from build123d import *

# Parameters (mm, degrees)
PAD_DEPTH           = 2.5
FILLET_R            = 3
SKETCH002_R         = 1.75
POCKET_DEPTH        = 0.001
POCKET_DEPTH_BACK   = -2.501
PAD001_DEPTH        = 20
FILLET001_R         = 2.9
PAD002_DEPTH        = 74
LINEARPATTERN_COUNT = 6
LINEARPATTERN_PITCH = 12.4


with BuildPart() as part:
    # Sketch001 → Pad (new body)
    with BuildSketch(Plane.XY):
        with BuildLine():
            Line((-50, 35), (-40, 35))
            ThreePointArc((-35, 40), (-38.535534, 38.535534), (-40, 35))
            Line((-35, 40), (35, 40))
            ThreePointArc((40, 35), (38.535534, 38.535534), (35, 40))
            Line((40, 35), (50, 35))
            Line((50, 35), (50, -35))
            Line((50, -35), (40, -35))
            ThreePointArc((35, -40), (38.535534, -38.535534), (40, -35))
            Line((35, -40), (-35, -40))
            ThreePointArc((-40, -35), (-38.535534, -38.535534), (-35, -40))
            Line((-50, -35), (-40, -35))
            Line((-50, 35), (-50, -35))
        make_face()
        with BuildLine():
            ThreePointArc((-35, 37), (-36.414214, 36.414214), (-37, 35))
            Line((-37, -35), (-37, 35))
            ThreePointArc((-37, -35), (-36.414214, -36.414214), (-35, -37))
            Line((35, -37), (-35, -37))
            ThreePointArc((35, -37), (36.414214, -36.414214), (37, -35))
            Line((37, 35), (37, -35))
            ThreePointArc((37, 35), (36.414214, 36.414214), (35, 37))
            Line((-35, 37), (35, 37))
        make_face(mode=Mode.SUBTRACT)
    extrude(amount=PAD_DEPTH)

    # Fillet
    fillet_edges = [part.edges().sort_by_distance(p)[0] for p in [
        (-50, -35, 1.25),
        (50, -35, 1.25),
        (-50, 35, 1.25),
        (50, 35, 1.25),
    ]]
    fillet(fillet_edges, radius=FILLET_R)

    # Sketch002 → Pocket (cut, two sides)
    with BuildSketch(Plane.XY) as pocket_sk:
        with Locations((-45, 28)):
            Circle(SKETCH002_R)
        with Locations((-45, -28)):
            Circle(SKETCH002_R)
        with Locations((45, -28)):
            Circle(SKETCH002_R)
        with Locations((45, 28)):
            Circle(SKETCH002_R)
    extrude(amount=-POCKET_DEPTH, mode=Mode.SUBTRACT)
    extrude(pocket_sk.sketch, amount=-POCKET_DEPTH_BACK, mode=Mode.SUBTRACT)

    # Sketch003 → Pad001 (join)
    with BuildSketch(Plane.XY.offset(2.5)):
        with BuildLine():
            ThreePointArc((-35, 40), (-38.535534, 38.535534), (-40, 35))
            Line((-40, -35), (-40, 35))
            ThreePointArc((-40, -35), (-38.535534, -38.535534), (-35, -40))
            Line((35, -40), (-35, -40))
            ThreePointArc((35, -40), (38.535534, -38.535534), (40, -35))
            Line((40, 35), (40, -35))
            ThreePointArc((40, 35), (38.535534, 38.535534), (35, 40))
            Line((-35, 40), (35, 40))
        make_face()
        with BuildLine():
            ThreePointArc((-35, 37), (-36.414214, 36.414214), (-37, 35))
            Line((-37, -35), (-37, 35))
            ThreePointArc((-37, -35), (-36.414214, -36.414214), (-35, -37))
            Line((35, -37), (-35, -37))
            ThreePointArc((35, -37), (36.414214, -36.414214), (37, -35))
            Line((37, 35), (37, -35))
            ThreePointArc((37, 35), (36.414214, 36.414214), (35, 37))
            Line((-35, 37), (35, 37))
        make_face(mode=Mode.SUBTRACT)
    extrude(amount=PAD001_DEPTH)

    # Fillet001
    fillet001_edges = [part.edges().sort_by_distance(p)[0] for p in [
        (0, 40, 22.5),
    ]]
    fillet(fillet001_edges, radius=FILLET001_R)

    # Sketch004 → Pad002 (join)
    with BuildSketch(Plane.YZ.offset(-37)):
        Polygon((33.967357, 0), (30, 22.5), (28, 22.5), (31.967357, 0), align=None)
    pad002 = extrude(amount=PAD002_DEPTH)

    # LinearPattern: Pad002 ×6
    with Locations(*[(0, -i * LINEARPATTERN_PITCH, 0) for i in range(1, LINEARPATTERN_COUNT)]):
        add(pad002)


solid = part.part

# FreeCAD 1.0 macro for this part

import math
import FreeCAD as App
import Part
import Sketcher
Q = App.Units.Quantity


def edges_at(feature, points):
    """Names of the edges that pass closest to the given points."""
    edges = feature.Shape.Edges
    near = lambda p: min(range(len(edges)), key=lambda i: edges[i].distToShape(Part.Vertex(*p))[0])
    return sorted({f"Edge{near(p) + 1}" for p in points})

doc = App.newDocument("Part")
params = doc.addObject("Spreadsheet::Sheet", "Params")
for row, (alias, value) in enumerate([
    ("sketch1_radius", "5 mm"),
    ("sketch1_radius2", "1.999999 mm"),
    ("sketch1_width", "10 mm"),
    ("sketch1_width2", "70 mm"),
    ("pad1_length", "2.5 mm"),
    ("fillet_radius", "3 mm"),
    ("sketch2_diameter", "3.5 mm"),
    ("sketch3_radius", "5 mm"),
    ("sketch3_radius2", "1.999999 mm"),
    ("sketch3_width", "70 mm"),
    ("pad2_length", "20 mm"),
    ("fillet2_radius", "2.9 mm"),
    ("sketch4_width", "2 mm"),
    ("pad3_length", "74 mm"),
    ("linearpattern_pitch", "12.4 mm"),
], start=1):
    params.set(f"A{row}", alias)
    params.set(f"B{row}", "=" + value)
    params.setAlias(f"B{row}", alias)

body = doc.addObject("PartDesign::Body", "Body")

# Sketch on XY plane
sketch1 = body.newObject("Sketcher::SketchObject", "Sketch")
sketch1.AttachmentSupport = (doc.getObject("XY_Plane"), [""])
sketch1.MapMode = "FlatFace"
sketch1.addGeometry([
    Part.LineSegment(App.Vector(-40, 35, 0), App.Vector(-50, 35, 0)),  # 0
    Part.LineSegment(App.Vector(-50, 35, 0), App.Vector(-50, -35, 0)),  # 1
    Part.LineSegment(App.Vector(-50, -35, 0), App.Vector(-40, -35, 0)),  # 2
    Part.ArcOfCircle(Part.Circle(App.Vector(-35, -35, 0), App.Vector(0, 0, 1), 5), math.radians(180), math.radians(270)),  # 3
    Part.LineSegment(App.Vector(-35, -40, 0), App.Vector(35, -40, 0)),  # 4
    Part.ArcOfCircle(Part.Circle(App.Vector(35, -35, 0), App.Vector(0, 0, 1), 5), math.radians(-90), math.radians(0)),  # 5
    Part.LineSegment(App.Vector(40, -35, 0), App.Vector(50, -35, 0)),  # 6
    Part.LineSegment(App.Vector(50, -35, 0), App.Vector(50, 35, 0)),  # 7
    Part.LineSegment(App.Vector(50, 35, 0), App.Vector(40, 35, 0)),  # 8
    Part.ArcOfCircle(Part.Circle(App.Vector(35, 35, 0), App.Vector(0, 0, 1), 5), math.radians(0), math.radians(90)),  # 9
    Part.LineSegment(App.Vector(35, 40, 0), App.Vector(-35, 40, 0)),  # 10
    Part.ArcOfCircle(Part.Circle(App.Vector(-35, 35, 0), App.Vector(0, 0, 1), 5), math.radians(90), math.radians(180)),  # 11
    Part.LineSegment(App.Vector(-35, 37, 0), App.Vector(35, 37, 0)),  # 12
    Part.ArcOfCircle(Part.Circle(App.Vector(35, 35, 0), App.Vector(0, 0, 1), 2), math.radians(0), math.radians(90)),  # 13
    Part.LineSegment(App.Vector(37, 35, 0), App.Vector(37, -35, 0)),  # 14
    Part.ArcOfCircle(Part.Circle(App.Vector(35, -35, 0), App.Vector(0, 0, 1), 2), math.radians(-90), math.radians(0)),  # 15
    Part.LineSegment(App.Vector(35, -37, 0), App.Vector(-35, -37, 0)),  # 16
    Part.ArcOfCircle(Part.Circle(App.Vector(-35, -35, 0), App.Vector(0, 0, 1), 2), math.radians(180), math.radians(270)),  # 17
    Part.LineSegment(App.Vector(-37, -35, 0), App.Vector(-37, 35, 0)),  # 18
    Part.ArcOfCircle(Part.Circle(App.Vector(-35, 35, 0), App.Vector(0, 0, 1), 2), math.radians(90), math.radians(180)),  # 19
], False)
sketch1.addConstraint([
    Sketcher.Constraint("Coincident", 0, 2, 1, 1),
    Sketcher.Constraint("Coincident", 1, 2, 2, 1),
    Sketcher.Constraint("Coincident", 2, 2, 3, 1),
    Sketcher.Constraint("Tangent", 3, 2, 4, 1),
    Sketcher.Constraint("Tangent", 4, 2, 5, 1),
    Sketcher.Constraint("Coincident", 5, 2, 6, 1),
    Sketcher.Constraint("Coincident", 6, 2, 7, 1),
    Sketcher.Constraint("Coincident", 7, 2, 8, 1),
    Sketcher.Constraint("Coincident", 8, 2, 9, 1),
    Sketcher.Constraint("Tangent", 9, 2, 10, 1),
    Sketcher.Constraint("Tangent", 10, 2, 11, 1),
    Sketcher.Constraint("Coincident", 11, 2, 0, 1),
    Sketcher.Constraint("Tangent", 12, 2, 13, 2),
    Sketcher.Constraint("Tangent", 13, 1, 14, 1),
    Sketcher.Constraint("Tangent", 14, 2, 15, 2),
    Sketcher.Constraint("Tangent", 15, 1, 16, 1),
    Sketcher.Constraint("Tangent", 16, 2, 17, 2),
    Sketcher.Constraint("Tangent", 17, 1, 18, 1),
    Sketcher.Constraint("Tangent", 18, 2, 19, 2),
    Sketcher.Constraint("Tangent", 19, 1, 12, 1),
    Sketcher.Constraint("Horizontal", 0),
    Sketcher.Constraint("Vertical", 1),
    Sketcher.Constraint("Horizontal", 2),
    Sketcher.Constraint("Horizontal", 4),
    Sketcher.Constraint("Horizontal", 6),
    Sketcher.Constraint("Vertical", 7),
    Sketcher.Constraint("Horizontal", 8),
    Sketcher.Constraint("Horizontal", 10),
    Sketcher.Constraint("Horizontal", 12),
    Sketcher.Constraint("Vertical", 14),
    Sketcher.Constraint("Horizontal", 16),
    Sketcher.Constraint("Vertical", 18),
    Sketcher.Constraint("Coincident", 13, 3, 9, 3),
    Sketcher.Constraint("Coincident", 15, 3, 5, 3),
    Sketcher.Constraint("Coincident", 17, 3, 3, 3),
    Sketcher.Constraint("Coincident", 19, 3, 11, 3),
    Sketcher.Constraint("Equal", 3, 5),
    Sketcher.Constraint("Equal", 5, 9),
    Sketcher.Constraint("Equal", 9, 11),
    Sketcher.Constraint("Equal", 13, 15),
    Sketcher.Constraint("Symmetric", 3, 3, 9, 3, -1, 1),
    Sketcher.Constraint("Symmetric", 0, 2, 6, 2, -1, 1),
    Sketcher.Constraint("Horizontal", 19, 3, 0, 2),
    Sketcher.Constraint("Horizontal", 17, 3, 1, 2),
    Sketcher.Constraint("Horizontal", 0, 2, 7, 2),
    Sketcher.Constraint("Equal", 16, 1),
    Sketcher.Constraint("Radius", 3, Q("5 mm")),
    Sketcher.Constraint("Radius", 13, Q("1.999999 mm")),
    Sketcher.Constraint("DistanceX", 0, 2, 0, 1, Q("10 mm")),
    Sketcher.Constraint("DistanceX", 4, 1, 4, 2, Q("70 mm")),
])
sketch1.setExpression("Constraints[46]", "Params.sketch1_radius")
sketch1.setExpression("Constraints[47]", "Params.sketch1_radius2")
sketch1.setExpression("Constraints[48]", "Params.sketch1_width")
sketch1.setExpression("Constraints[49]", "Params.sketch1_width2")
pad1 = body.newObject("PartDesign::Pad", "Pad")
pad1.Profile = sketch1
pad1.setExpression("Length", "Params.pad1_length")
doc.recompute()

fillet = body.newObject("PartDesign::Fillet", "Fillet")
fillet.Base = (pad1, edges_at(pad1, [
    (-50, -35, 1.25),
    (50, -35, 1.25),
    (-50, 35, 1.25),
    (50, 35, 1.25),
]))
fillet.setExpression("Radius", "Params.fillet_radius")

# Sketch on XY plane
sketch2 = body.newObject("Sketcher::SketchObject", "Sketch001")
sketch2.AttachmentSupport = (doc.getObject("XY_Plane"), [""])
sketch2.MapMode = "FlatFace"
sketch2.addGeometry([
    Part.Circle(App.Vector(-45, 28, 0), App.Vector(0, 0, 1), 1.8),
    Part.Circle(App.Vector(-45, -28, 0), App.Vector(0, 0, 1), 1.8),
    Part.Circle(App.Vector(45, -28, 0), App.Vector(0, 0, 1), 1.8),
    Part.Circle(App.Vector(45, 28, 0), App.Vector(0, 0, 1), 1.8),
], False)
sketch2.addConstraint([
    Sketcher.Constraint("Equal", 0, 1),
    Sketcher.Constraint("Equal", 1, 2),
    Sketcher.Constraint("Equal", 2, 3),
    Sketcher.Constraint("Symmetric", 0, 3, 2, 3, -1, 1),
    Sketcher.Constraint("Symmetric", 1, 3, 3, 3, -1, 1),
    Sketcher.Constraint("Symmetric", 1, 3, 2, 3, -2),
    Sketcher.Constraint("Diameter", 0, Q("3.5 mm")),
    Sketcher.Constraint("DistanceX", 0, 3, -1, 1, Q("45 mm")),
    Sketcher.Constraint("DistanceY", -1, 1, 0, 3, Q("28 mm")),
])
sketch2.setExpression("Constraints[6]", "Params.sketch2_diameter")
pocket1 = body.newObject("PartDesign::Pocket", "Pocket")
pocket1.Profile = sketch2
pocket1.Type = "ThroughAll"
pocket1.Midplane = True

# Sketch on XY plane
sketch3 = body.newObject("Sketcher::SketchObject", "Sketch002")
sketch3.AttachmentSupport = (doc.getObject("XY_Plane"), [""])
sketch3.MapMode = "FlatFace"
sketch3.AttachmentOffset = App.Placement(App.Vector(0, 0, 2.5), App.Rotation())
sketch3.addGeometry([
    Part.ArcOfCircle(Part.Circle(App.Vector(-35, 35, 0), App.Vector(0, 0, 1), 5), math.radians(90), math.radians(180)),  # 0
    Part.LineSegment(App.Vector(-40, 35, 0), App.Vector(-40, -35, 0)),  # 1
    Part.ArcOfCircle(Part.Circle(App.Vector(-35, -35, 0), App.Vector(0, 0, 1), 5), math.radians(180), math.radians(270)),  # 2
    Part.LineSegment(App.Vector(-35, -40, 0), App.Vector(35, -40, 0)),  # 3
    Part.ArcOfCircle(Part.Circle(App.Vector(35, -35, 0), App.Vector(0, 0, 1), 5), math.radians(-90), math.radians(0)),  # 4
    Part.LineSegment(App.Vector(40, -35, 0), App.Vector(40, 35, 0)),  # 5
    Part.ArcOfCircle(Part.Circle(App.Vector(35, 35, 0), App.Vector(0, 0, 1), 5), math.radians(0), math.radians(90)),  # 6
    Part.LineSegment(App.Vector(35, 40, 0), App.Vector(-35, 40, 0)),  # 7
    Part.ArcOfCircle(Part.Circle(App.Vector(-35, 35, 0), App.Vector(0, 0, 1), 2), math.radians(90), math.radians(180)),  # 8
    Part.LineSegment(App.Vector(-35, 37, 0), App.Vector(35, 37, 0)),  # 9
    Part.ArcOfCircle(Part.Circle(App.Vector(35, 35, 0), App.Vector(0, 0, 1), 2), math.radians(0), math.radians(90)),  # 10
    Part.LineSegment(App.Vector(37, 35, 0), App.Vector(37, -35, 0)),  # 11
    Part.ArcOfCircle(Part.Circle(App.Vector(35, -35, 0), App.Vector(0, 0, 1), 2), math.radians(-90), math.radians(0)),  # 12
    Part.LineSegment(App.Vector(35, -37, 0), App.Vector(-35, -37, 0)),  # 13
    Part.ArcOfCircle(Part.Circle(App.Vector(-35, -35, 0), App.Vector(0, 0, 1), 2), math.radians(180), math.radians(270)),  # 14
    Part.LineSegment(App.Vector(-37, -35, 0), App.Vector(-37, 35, 0)),  # 15
], False)
sketch3.addConstraint([
    Sketcher.Constraint("Tangent", 0, 2, 1, 1),
    Sketcher.Constraint("Tangent", 1, 2, 2, 1),
    Sketcher.Constraint("Tangent", 2, 2, 3, 1),
    Sketcher.Constraint("Tangent", 3, 2, 4, 1),
    Sketcher.Constraint("Tangent", 4, 2, 5, 1),
    Sketcher.Constraint("Tangent", 5, 2, 6, 1),
    Sketcher.Constraint("Tangent", 6, 2, 7, 1),
    Sketcher.Constraint("Tangent", 7, 2, 0, 1),
    Sketcher.Constraint("Tangent", 8, 1, 9, 1),
    Sketcher.Constraint("Tangent", 9, 2, 10, 2),
    Sketcher.Constraint("Tangent", 10, 1, 11, 1),
    Sketcher.Constraint("Tangent", 11, 2, 12, 2),
    Sketcher.Constraint("Tangent", 12, 1, 13, 1),
    Sketcher.Constraint("Tangent", 13, 2, 14, 2),
    Sketcher.Constraint("Tangent", 14, 1, 15, 1),
    Sketcher.Constraint("Tangent", 15, 2, 8, 2),
    Sketcher.Constraint("Vertical", 1),
    Sketcher.Constraint("Horizontal", 3),
    Sketcher.Constraint("Vertical", 5),
    Sketcher.Constraint("Horizontal", 7),
    Sketcher.Constraint("Horizontal", 9),
    Sketcher.Constraint("Vertical", 11),
    Sketcher.Constraint("Horizontal", 13),
    Sketcher.Constraint("Vertical", 15),
    Sketcher.Constraint("Coincident", 8, 3, 0, 3),
    Sketcher.Constraint("Coincident", 10, 3, 6, 3),
    Sketcher.Constraint("Coincident", 12, 3, 4, 3),
    Sketcher.Constraint("Equal", 0, 2),
    Sketcher.Constraint("Equal", 2, 4),
    Sketcher.Constraint("Equal", 4, 6),
    Sketcher.Constraint("Equal", 12, 14),
    Sketcher.Constraint("Symmetric", 0, 3, 4, 3, -1, 1),
    Sketcher.Constraint("Equal", 13, 1),
    Sketcher.Constraint("Radius", 0, Q("5 mm")),
    Sketcher.Constraint("Radius", 8, Q("1.999999 mm")),
    Sketcher.Constraint("DistanceX", 3, 1, 3, 2, Q("70 mm")),
])
sketch3.setExpression("Constraints[33]", "Params.sketch3_radius")
sketch3.setExpression("Constraints[34]", "Params.sketch3_radius2")
sketch3.setExpression("Constraints[35]", "Params.sketch3_width")
pad2 = body.newObject("PartDesign::Pad", "Pad001")
pad2.Profile = sketch3
pad2.setExpression("Length", "Params.pad2_length")
doc.recompute()

fillet2 = body.newObject("PartDesign::Fillet", "Fillet001")
fillet2.Base = (pad2, edges_at(pad2, [(0, 40, 22.5)]))
fillet2.setExpression("Radius", "Params.fillet2_radius")

# Sketch on YZ plane
sketch4 = body.newObject("Sketcher::SketchObject", "Sketch003")
sketch4.AttachmentSupport = (doc.getObject("YZ_Plane"), [""])
sketch4.MapMode = "FlatFace"
sketch4.AttachmentOffset = App.Placement(App.Vector(0, 0, -37), App.Rotation())
sketch4.addGeometry([
    Part.LineSegment(App.Vector(34, 0, 0), App.Vector(30, 22.5, 0)),
    Part.LineSegment(App.Vector(30, 22.5, 0), App.Vector(28, 22.5, 0)),
    Part.LineSegment(App.Vector(28, 22.5, 0), App.Vector(32, 0, 0)),
    Part.LineSegment(App.Vector(32, 0, 0), App.Vector(34, 0, 0)),
], False)
sketch4.addConstraint([
    Sketcher.Constraint("Coincident", 0, 2, 1, 1),
    Sketcher.Constraint("Coincident", 1, 2, 2, 1),
    Sketcher.Constraint("Coincident", 2, 2, 3, 1),
    Sketcher.Constraint("Coincident", 3, 2, 0, 1),
    Sketcher.Constraint("Horizontal", 1),
    Sketcher.Constraint("Horizontal", 3),
    Sketcher.Constraint("PointOnObject", 2, 2, -1),
    Sketcher.Constraint("Parallel", 0, 2),
    Sketcher.Constraint("DistanceX", 1, 2, 1, 1, Q("2 mm")),
    Sketcher.Constraint("Angle", 0, Q("100 deg")),
    Sketcher.Constraint("DistanceX", -1, 1, 0, 2, Q("30 mm")),
    Sketcher.Constraint("DistanceY", -1, 1, 0, 2, Q("22.5 mm")),
])
sketch4.setExpression("Constraints[8]", "Params.sketch4_width")
pad3 = body.newObject("PartDesign::Pad", "Pad002")
pad3.Profile = sketch4
pad3.setExpression("Length", "Params.pad3_length")
doc.recompute()

linearpattern = body.newObject("PartDesign::LinearPattern", "LinearPattern")
linearpattern.Originals = [pad3]
linearpattern.Direction = (doc.getObject("Y_Axis"), [""])
linearpattern.Mode = "offset"
linearpattern.setExpression("Offset", "Params.linearpattern_pitch")
linearpattern.Occurrences = 6
linearpattern.Reversed = True
body.Tip = linearpattern

doc.recompute()
